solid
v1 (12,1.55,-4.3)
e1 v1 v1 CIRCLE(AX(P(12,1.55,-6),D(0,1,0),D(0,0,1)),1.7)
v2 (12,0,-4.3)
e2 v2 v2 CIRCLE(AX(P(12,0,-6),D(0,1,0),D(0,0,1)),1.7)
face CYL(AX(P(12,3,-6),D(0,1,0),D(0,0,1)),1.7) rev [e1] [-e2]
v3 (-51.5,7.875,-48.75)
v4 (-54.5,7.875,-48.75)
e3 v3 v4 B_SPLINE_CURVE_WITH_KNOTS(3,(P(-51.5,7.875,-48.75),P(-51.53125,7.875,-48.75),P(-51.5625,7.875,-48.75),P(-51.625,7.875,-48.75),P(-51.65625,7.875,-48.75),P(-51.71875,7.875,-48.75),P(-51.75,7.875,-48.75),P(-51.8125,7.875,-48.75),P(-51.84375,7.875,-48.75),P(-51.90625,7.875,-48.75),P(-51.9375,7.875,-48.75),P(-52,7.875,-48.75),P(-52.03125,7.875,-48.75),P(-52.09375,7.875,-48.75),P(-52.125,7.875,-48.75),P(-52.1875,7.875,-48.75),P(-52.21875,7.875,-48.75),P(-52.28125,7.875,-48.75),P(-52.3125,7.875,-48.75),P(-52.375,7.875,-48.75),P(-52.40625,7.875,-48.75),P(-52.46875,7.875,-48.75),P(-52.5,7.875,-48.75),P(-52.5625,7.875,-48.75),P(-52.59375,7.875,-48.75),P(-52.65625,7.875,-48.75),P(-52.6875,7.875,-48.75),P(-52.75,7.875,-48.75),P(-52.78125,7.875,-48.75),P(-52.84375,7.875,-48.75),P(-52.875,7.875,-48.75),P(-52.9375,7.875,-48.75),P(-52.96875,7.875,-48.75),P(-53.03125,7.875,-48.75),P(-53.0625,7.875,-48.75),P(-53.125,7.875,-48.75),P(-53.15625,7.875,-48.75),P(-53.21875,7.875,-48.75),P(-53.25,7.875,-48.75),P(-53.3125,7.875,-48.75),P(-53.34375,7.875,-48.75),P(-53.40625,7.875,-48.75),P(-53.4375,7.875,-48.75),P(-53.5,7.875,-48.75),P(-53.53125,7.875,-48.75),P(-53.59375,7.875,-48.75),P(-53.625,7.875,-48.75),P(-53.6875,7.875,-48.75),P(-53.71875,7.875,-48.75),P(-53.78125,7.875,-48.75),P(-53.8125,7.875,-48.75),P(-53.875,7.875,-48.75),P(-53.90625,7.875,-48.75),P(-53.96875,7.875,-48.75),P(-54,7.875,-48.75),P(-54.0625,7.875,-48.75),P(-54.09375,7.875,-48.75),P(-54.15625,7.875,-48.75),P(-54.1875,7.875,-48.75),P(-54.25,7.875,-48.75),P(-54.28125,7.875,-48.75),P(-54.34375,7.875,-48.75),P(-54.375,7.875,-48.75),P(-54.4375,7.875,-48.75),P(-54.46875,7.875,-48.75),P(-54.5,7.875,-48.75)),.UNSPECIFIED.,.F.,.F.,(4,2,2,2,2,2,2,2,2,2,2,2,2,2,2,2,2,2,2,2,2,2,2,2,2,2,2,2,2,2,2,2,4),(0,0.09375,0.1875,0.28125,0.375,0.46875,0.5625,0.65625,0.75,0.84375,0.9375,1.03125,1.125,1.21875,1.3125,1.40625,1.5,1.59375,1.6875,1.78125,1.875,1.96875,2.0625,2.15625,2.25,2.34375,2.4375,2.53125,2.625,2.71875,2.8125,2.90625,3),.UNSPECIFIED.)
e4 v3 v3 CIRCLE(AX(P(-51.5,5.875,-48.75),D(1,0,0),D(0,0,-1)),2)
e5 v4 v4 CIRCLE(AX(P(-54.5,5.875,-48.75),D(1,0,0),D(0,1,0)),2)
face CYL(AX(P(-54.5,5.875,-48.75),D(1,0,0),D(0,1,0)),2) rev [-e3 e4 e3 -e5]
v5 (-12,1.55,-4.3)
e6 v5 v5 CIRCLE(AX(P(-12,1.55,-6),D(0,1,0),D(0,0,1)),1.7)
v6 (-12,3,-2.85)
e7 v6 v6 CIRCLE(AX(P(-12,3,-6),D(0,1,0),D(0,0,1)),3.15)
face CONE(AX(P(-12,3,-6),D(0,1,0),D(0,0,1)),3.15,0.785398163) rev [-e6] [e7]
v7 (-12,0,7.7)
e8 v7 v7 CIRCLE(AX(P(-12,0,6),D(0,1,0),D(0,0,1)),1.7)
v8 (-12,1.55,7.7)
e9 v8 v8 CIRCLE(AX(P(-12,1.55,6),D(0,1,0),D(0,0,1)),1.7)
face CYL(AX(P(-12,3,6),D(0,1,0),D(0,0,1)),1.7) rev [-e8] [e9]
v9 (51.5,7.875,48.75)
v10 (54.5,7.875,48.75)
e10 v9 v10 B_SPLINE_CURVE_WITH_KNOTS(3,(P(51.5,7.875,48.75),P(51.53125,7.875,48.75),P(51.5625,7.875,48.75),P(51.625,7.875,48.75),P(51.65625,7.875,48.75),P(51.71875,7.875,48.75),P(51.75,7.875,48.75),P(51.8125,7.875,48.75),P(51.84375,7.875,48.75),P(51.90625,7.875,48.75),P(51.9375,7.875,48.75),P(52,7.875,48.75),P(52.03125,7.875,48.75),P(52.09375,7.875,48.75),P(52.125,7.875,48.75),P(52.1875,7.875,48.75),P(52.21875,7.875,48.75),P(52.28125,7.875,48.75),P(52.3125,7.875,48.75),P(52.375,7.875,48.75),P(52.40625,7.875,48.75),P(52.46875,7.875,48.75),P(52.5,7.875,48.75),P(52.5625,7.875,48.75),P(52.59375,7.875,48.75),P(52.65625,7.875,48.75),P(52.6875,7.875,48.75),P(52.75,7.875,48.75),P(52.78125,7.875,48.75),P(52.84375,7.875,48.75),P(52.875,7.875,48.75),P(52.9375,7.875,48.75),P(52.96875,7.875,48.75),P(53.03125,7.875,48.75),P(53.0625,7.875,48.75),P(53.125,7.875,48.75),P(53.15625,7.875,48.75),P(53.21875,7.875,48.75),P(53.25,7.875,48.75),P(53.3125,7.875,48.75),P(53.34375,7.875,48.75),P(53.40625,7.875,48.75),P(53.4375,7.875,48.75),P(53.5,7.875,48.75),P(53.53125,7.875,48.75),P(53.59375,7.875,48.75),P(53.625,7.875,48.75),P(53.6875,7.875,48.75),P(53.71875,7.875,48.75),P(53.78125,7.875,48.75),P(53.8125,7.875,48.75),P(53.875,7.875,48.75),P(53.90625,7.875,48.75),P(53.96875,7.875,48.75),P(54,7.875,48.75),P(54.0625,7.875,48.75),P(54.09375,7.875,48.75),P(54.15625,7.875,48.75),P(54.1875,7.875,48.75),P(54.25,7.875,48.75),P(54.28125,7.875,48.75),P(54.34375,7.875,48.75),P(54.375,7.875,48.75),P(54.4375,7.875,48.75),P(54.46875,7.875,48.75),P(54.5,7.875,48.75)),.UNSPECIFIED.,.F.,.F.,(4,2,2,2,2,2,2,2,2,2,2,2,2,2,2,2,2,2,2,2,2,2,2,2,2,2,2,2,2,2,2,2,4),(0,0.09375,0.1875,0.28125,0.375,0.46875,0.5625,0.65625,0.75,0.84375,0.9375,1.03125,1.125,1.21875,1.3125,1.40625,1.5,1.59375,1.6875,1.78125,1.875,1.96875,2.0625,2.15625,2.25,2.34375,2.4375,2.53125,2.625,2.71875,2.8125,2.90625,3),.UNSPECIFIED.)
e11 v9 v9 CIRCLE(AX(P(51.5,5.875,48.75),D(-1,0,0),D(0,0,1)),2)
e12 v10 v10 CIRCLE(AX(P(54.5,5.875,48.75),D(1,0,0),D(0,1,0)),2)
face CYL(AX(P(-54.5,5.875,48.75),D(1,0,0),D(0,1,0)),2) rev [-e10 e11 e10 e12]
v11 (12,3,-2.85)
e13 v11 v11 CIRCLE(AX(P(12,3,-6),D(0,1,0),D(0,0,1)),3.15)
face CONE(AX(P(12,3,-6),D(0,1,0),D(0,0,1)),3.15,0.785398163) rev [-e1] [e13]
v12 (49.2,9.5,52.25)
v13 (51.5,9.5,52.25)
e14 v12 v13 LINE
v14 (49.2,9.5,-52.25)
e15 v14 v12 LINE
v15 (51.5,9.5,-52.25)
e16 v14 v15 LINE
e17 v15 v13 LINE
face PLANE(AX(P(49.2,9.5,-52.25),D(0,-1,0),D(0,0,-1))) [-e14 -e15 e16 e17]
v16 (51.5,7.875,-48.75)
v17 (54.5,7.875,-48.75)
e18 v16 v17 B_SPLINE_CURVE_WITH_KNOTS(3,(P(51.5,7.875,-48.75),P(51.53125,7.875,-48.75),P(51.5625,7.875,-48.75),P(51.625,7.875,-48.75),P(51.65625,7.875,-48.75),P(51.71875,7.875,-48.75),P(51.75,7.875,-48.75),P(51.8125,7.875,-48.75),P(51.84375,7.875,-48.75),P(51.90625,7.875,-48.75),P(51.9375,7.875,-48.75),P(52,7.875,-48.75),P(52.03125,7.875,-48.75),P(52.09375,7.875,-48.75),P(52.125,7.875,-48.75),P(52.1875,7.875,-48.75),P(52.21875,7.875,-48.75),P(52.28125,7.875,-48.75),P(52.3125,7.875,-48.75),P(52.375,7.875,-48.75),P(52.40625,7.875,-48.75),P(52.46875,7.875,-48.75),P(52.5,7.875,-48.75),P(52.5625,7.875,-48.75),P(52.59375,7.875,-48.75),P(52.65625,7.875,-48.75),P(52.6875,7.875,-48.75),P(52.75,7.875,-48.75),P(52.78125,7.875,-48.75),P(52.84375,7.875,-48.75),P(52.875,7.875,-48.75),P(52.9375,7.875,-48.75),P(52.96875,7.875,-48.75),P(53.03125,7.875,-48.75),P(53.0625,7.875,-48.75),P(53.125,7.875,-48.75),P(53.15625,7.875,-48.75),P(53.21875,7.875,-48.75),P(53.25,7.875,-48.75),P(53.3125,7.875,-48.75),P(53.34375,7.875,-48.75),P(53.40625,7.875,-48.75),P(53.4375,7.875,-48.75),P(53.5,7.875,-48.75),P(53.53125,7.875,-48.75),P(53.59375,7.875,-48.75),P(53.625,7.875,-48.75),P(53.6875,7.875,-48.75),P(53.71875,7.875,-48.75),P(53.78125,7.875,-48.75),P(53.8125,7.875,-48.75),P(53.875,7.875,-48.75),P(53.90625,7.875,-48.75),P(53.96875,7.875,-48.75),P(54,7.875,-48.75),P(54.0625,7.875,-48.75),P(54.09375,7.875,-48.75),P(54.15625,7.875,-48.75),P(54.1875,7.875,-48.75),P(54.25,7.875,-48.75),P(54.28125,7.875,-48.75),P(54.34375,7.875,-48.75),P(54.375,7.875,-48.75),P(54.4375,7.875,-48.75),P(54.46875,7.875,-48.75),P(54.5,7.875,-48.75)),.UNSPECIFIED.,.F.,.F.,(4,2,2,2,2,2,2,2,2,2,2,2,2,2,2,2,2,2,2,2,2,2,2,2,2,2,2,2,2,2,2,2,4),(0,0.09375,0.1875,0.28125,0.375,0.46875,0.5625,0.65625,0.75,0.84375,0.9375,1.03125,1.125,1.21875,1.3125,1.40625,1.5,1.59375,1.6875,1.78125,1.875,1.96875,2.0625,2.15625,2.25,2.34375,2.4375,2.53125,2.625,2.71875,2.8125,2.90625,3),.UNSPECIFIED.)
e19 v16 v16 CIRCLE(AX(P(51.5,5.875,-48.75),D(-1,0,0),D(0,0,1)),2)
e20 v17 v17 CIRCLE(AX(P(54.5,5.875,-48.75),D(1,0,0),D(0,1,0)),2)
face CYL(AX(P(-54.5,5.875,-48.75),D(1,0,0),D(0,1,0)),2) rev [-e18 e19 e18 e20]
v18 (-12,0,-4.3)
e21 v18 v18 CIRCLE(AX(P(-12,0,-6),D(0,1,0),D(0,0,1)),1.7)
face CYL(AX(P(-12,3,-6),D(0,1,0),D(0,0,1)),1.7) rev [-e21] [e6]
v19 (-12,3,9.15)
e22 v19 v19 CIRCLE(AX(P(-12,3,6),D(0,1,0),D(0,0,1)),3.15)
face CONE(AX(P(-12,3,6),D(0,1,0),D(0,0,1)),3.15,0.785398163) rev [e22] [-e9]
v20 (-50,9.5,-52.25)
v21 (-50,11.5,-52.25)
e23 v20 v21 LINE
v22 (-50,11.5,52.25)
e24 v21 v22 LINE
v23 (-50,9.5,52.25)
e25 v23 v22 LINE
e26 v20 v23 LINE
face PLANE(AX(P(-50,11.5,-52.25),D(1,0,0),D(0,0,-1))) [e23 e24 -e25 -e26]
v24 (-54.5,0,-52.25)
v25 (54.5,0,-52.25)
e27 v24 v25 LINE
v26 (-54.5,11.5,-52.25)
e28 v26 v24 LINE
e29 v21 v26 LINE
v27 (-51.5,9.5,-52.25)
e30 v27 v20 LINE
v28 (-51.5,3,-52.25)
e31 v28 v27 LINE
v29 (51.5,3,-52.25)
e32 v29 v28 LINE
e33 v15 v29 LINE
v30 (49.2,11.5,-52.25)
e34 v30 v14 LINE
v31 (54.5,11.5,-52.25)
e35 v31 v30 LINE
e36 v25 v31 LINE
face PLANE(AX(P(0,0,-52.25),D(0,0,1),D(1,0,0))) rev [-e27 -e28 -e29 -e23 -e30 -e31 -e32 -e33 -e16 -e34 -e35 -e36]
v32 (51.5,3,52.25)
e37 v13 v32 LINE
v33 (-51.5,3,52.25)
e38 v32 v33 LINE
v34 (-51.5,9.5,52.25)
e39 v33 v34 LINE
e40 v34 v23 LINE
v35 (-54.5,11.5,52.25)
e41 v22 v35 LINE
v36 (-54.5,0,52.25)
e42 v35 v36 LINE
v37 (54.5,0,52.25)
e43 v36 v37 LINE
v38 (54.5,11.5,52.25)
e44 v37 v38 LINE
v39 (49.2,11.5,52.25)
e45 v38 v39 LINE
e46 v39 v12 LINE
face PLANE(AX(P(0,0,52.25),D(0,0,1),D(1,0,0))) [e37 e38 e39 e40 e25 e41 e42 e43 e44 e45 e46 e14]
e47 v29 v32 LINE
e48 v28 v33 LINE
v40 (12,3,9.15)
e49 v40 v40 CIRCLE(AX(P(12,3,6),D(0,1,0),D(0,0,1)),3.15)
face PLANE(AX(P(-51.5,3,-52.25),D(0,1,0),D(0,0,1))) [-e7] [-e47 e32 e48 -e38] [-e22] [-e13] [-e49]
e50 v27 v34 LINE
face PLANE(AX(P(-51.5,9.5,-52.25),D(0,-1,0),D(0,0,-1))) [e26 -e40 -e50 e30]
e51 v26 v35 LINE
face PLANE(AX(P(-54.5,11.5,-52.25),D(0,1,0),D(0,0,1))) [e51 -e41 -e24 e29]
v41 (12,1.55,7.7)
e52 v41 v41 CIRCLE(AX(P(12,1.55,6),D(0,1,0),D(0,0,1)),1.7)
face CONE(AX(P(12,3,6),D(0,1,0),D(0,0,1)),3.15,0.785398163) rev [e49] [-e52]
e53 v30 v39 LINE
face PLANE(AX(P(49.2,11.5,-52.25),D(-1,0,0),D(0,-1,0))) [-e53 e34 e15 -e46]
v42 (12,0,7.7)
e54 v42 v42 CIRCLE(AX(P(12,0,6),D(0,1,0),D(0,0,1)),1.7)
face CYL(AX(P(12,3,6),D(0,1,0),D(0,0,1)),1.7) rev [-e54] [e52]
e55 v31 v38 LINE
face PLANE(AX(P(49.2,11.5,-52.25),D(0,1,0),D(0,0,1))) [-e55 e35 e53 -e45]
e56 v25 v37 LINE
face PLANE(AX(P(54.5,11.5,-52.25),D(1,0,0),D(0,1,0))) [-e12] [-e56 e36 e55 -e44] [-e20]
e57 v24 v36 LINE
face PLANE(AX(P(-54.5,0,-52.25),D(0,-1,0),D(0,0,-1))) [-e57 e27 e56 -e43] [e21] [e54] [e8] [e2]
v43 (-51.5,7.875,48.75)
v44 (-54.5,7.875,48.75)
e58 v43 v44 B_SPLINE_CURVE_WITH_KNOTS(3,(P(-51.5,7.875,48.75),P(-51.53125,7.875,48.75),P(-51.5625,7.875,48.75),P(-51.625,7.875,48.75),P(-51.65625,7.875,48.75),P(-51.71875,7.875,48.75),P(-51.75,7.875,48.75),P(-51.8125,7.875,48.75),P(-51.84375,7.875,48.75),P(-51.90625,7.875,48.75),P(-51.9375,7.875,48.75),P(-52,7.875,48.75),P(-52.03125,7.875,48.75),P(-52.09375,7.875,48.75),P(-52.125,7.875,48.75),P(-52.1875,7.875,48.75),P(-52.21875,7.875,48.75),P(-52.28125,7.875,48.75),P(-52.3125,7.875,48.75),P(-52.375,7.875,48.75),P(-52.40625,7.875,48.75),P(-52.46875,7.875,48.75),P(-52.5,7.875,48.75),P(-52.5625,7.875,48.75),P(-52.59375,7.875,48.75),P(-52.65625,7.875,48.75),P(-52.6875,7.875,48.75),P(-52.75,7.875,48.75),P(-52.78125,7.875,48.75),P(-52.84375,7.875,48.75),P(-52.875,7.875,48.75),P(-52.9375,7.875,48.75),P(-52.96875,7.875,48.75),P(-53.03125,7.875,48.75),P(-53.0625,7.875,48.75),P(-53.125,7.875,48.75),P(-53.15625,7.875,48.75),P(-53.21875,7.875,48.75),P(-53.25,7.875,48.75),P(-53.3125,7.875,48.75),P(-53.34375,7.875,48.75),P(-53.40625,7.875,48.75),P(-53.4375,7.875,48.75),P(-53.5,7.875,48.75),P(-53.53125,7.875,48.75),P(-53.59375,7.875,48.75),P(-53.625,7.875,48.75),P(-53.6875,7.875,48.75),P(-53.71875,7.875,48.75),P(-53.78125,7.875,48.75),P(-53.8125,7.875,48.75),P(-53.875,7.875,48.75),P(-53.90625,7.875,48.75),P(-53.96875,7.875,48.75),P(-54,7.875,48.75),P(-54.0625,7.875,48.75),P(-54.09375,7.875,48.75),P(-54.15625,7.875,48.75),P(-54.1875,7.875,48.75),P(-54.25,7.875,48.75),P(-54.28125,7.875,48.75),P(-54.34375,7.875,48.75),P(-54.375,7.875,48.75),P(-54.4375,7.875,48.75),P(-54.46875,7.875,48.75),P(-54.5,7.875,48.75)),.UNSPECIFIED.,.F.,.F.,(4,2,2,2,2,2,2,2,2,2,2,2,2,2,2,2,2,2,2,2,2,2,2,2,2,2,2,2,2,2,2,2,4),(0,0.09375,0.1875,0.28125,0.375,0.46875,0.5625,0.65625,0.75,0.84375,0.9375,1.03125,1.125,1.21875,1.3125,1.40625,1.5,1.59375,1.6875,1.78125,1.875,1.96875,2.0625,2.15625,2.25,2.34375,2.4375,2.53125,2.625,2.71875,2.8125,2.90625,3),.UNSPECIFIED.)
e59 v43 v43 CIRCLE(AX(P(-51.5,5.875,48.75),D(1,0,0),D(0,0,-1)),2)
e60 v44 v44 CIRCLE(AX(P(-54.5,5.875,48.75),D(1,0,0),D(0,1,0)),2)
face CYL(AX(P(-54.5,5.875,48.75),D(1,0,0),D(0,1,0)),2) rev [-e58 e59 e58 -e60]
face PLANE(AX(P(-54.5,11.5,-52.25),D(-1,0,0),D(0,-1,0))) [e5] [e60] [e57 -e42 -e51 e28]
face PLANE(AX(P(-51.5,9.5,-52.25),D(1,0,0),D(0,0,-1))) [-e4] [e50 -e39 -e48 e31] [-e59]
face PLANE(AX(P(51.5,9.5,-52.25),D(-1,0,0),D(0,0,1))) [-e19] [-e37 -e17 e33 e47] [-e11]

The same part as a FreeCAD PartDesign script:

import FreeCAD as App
import Part
import Sketcher
Q = App.Units.Quantity

doc = App.newDocument("Part")
params = doc.addObject("Spreadsheet::Sheet", "Params")
for row, (alias, value) in enumerate([
    ("sketch1_width", "109 mm"),
    ("sketch1_width2", "103 mm"),
    ("sketch1_height", "2 mm"),
    ("sketch1_width3", "4.5 mm"),
    ("sketch1_width4", "5.3 mm"),
    ("pad1_length", "52.25 mm"),
    ("pad1_length2", "52.25 mm"),
    ("sketch2_width", "3 mm"),
    ("sketch2_height", "1.7 mm"),
    ("sketch2_width2", "1.55 mm"),
    ("groove_angle", "360 deg"),
    ("linearpattern_pitch", "12 mm"),
    ("linearpattern2_pitch", "26.832816 mm"),
    ("linearpattern3_pitch", "24 mm"),
    ("sketch3_diameter", "4 mm"),
], start=1):
    params.set(f"A{row}", alias)
    params.set(f"B{row}", "=" + value)
    params.setAlias(f"B{row}", alias)

body = doc.addObject("PartDesign::Body", "Body")

# Sketch on XY plane
sketch1 = doc.addObject("Sketcher::SketchObject", "Sketch")
body.addObject(sketch1)
sketch1.AttachmentSupport = (doc.XY_Plane, [""])
sketch1.MapMode = "FlatFace"
sketch1.addGeometry([
    Part.LineSegment(App.Vector(-50, 9.5, 0), App.Vector(-50, 11.5, 0)),  # 0
    Part.LineSegment(App.Vector(-50, 11.5, 0), App.Vector(-54.5, 11.5, 0)),  # 1
    Part.LineSegment(App.Vector(-54.5, 11.5, 0), App.Vector(-54.5, 0, 0)),  # 2
    Part.LineSegment(App.Vector(-54.5, 0, 0), App.Vector(54.5, 0, 0)),  # 3
    Part.LineSegment(App.Vector(54.5, 0, 0), App.Vector(54.5, 11.5, 0)),  # 4
    Part.LineSegment(App.Vector(54.5, 11.5, 0), App.Vector(49.2, 11.5, 0)),  # 5
    Part.LineSegment(App.Vector(49.2, 11.5, 0), App.Vector(49.2, 9.5, 0)),  # 6
    Part.LineSegment(App.Vector(49.2, 9.5, 0), App.Vector(51.5, 9.5, 0)),  # 7
    Part.LineSegment(App.Vector(51.5, 9.5, 0), App.Vector(51.5, 3, 0)),  # 8
    Part.LineSegment(App.Vector(51.5, 3, 0), App.Vector(-51.5, 3, 0)),  # 9
    Part.LineSegment(App.Vector(-51.5, 3, 0), App.Vector(-51.5, 9.5, 0)),  # 10
    Part.LineSegment(App.Vector(-51.5, 9.5, 0), App.Vector(-50, 9.5, 0)),  # 11
], False)
sketch1.addConstraint([
    Sketcher.Constraint("Coincident", 0, 2, 1, 1),
    Sketcher.Constraint("Coincident", 1, 2, 2, 1),
    Sketcher.Constraint("Coincident", 2, 2, 3, 1),
    Sketcher.Constraint("Coincident", 3, 2, 4, 1),
    Sketcher.Constraint("Coincident", 4, 2, 5, 1),
    Sketcher.Constraint("Coincident", 5, 2, 6, 1),
    Sketcher.Constraint("Coincident", 6, 2, 7, 1),
    Sketcher.Constraint("Coincident", 7, 2, 8, 1),
    Sketcher.Constraint("Coincident", 8, 2, 9, 1),
    Sketcher.Constraint("Coincident", 9, 2, 10, 1),
    Sketcher.Constraint("Coincident", 10, 2, 11, 1),
    Sketcher.Constraint("Coincident", 11, 2, 0, 1),
    Sketcher.Constraint("Vertical", 0),
    Sketcher.Constraint("Horizontal", 1),
    Sketcher.Constraint("Vertical", 2),
    Sketcher.Constraint("Horizontal", 3),
    Sketcher.Constraint("Vertical", 4),
    Sketcher.Constraint("Horizontal", 5),
    Sketcher.Constraint("Vertical", 6),
    Sketcher.Constraint("Horizontal", 7),
    Sketcher.Constraint("Vertical", 8),
    Sketcher.Constraint("Horizontal", 9),
    Sketcher.Constraint("Vertical", 10),
    Sketcher.Constraint("Horizontal", 11),
    Sketcher.Constraint("Symmetric", 2, 2, 3, 2, -1, 1),
    Sketcher.Constraint("Symmetric", 7, 2, 10, 2, -2),
    Sketcher.Constraint("Horizontal", 1, 2, 4, 2),
    Sketcher.Constraint("DistanceX", 3, 1, 3, 2, 109.0),
    Sketcher.Constraint("DistanceX", 9, 2, 9, 1, 103.0),
    Sketcher.Constraint("DistanceY", 0, 1, 0, 2, 2.0),
    Sketcher.Constraint("DistanceX", 1, 2, 1, 1, 4.5),
    Sketcher.Constraint("DistanceX", 5, 2, 5, 1, 5.3),
    Sketcher.Constraint("DistanceY", 2, 2, 2, 1, 11.5),
    Sketcher.Constraint("DistanceY", 8, 2, 8, 1, 6.5),
])
sketch1.setExpression("Constraints[27]", "Params.sketch1_width")
sketch1.setExpression("Constraints[28]", "Params.sketch1_width2")
sketch1.setExpression("Constraints[29]", "Params.sketch1_height")
sketch1.setExpression("Constraints[30]", "Params.sketch1_width3")
sketch1.setExpression("Constraints[31]", "Params.sketch1_width4")
pad1 = doc.addObject("PartDesign::Pad", "Pad")
body.addObject(pad1)
pad1.Profile = sketch1
pad1.Type = "TwoLengths"
pad1.setExpression("Length", "Params.pad1_length")
pad1.setExpression("Length2", "Params.pad1_length2")

# Sketch on YZ plane
sketch2 = doc.addObject("Sketcher::SketchObject", "Sketch001")
body.addObject(sketch2)
sketch2.AttachmentSupport = (doc.YZ_Plane, [""])
sketch2.MapMode = "FlatFace"
sketch2.AttachmentOffset = App.Placement(App.Vector(0, 0, -12), App.Rotation())
sketch2.addGeometry([
    Part.LineSegment(App.Vector(0, -6, 0), App.Vector(3, -6, 0)),  # 0
    Part.LineSegment(App.Vector(3, -6, 0), App.Vector(3, -2.9, 0)),  # 1
    Part.LineSegment(App.Vector(3, -2.9, 0), App.Vector(1.6, -4.3, 0)),  # 2
    Part.LineSegment(App.Vector(1.6, -4.3, 0), App.Vector(0, -4.3, 0)),  # 3
    Part.LineSegment(App.Vector(0, -4.3, 0), App.Vector(0, -6, 0)),  # 4
], False)
sketch2.addGeometry(Part.LineSegment(App.Vector(3, -6, 0), App.Vector(0, -6, 0)), True)  # axis
sketch2.addConstraint([
    Sketcher.Constraint("Coincident", 0, 2, 1, 1),
    Sketcher.Constraint("Coincident", 1, 2, 2, 1),
    Sketcher.Constraint("Coincident", 2, 2, 3, 1),
    Sketcher.Constraint("Coincident", 3, 2, 4, 1),
    Sketcher.Constraint("Coincident", 4, 2, 0, 1),
    Sketcher.Constraint("Horizontal", 0),
    Sketcher.Constraint("Vertical", 1),
    Sketcher.Constraint("Horizontal", 3),
    Sketcher.Constraint("Vertical", 4),
    Sketcher.Constraint("Horizontal", 5),
    Sketcher.Constraint("Coincident", 5, 1, 0, 2),
    Sketcher.Constraint("PointOnObject", 3, 2, -2),
    Sketcher.Constraint("PointOnObject", 5, 2, -2),
    Sketcher.Constraint("DistanceX", 0, 1, 0, 2, 3.0),
    Sketcher.Constraint("Angle", 2, Q("-135 deg")),
    Sketcher.Constraint("DistanceY", 4, 2, 4, 1, 1.7),
    Sketcher.Constraint("DistanceY", 0, 2, -1, 1, 6.0),
    Sketcher.Constraint("DistanceX", 3, 2, 3, 1, 1.55),
])
sketch2.setExpression("Constraints[13]", "Params.sketch2_width")
sketch2.setExpression("Constraints[15]", "Params.sketch2_height")
sketch2.setExpression("Constraints[17]", "Params.sketch2_width2")
groove = doc.addObject("PartDesign::Groove", "Groove")
body.addObject(groove)
groove.Profile = sketch2
groove.ReferenceAxis = (sketch2, ["Axis0"])
groove.setExpression("Angle", "Params.groove_angle")
doc.recompute()

linearpattern = doc.addObject("PartDesign::LinearPattern", "LinearPattern")
body.addObject(linearpattern)
linearpattern.Originals = [groove]
linearpattern.Direction = (doc.Z_Axis, [""])
linearpattern.Mode = "offset"
linearpattern.setExpression("Offset", "Params.linearpattern_pitch")
linearpattern.Occurrences = 2
body.Tip = linearpattern
doc.recompute()

datumline = doc.addObject("PartDesign::Line", "DatumLine")
body.addObject(datumline)
datumline.Placement = App.Placement(App.Vector(0, 0, 0), App.Rotation(App.Vector(0, 0, 1), App.Vector(0.894427191, 0, 0.447213595)))
linearpattern2 = doc.addObject("PartDesign::LinearPattern", "LinearPattern001")
body.addObject(linearpattern2)
linearpattern2.Originals = [groove]
linearpattern2.Direction = (datumline, [""])
linearpattern2.Mode = "offset"
linearpattern2.setExpression("Offset", "Params.linearpattern2_pitch")
linearpattern2.Occurrences = 2
body.Tip = linearpattern2
doc.recompute()

linearpattern3 = doc.addObject("PartDesign::LinearPattern", "LinearPattern002")
body.addObject(linearpattern3)
linearpattern3.Originals = [groove]
linearpattern3.Direction = (doc.X_Axis, [""])
linearpattern3.Mode = "offset"
linearpattern3.setExpression("Offset", "Params.linearpattern3_pitch")
linearpattern3.Occurrences = 2
body.Tip = linearpattern3

# Sketch on YZ plane
sketch3 = doc.addObject("Sketcher::SketchObject", "Sketch002")
body.addObject(sketch3)
sketch3.AttachmentSupport = (doc.YZ_Plane, [""])
sketch3.MapMode = "FlatFace"
sketch3.AttachmentOffset = App.Placement(App.Vector(0, 0, 54.5), App.Rotation())
sketch3.addGeometry([
    Part.Circle(App.Vector(5.9, 48.8, 0), App.Vector(0, 0, 1), 2),
    Part.Circle(App.Vector(5.9, -48.8, 0), App.Vector(0, 0, 1), 2),
], False)
sketch3.addConstraint([
    Sketcher.Constraint("Equal", 0, 1),
    Sketcher.Constraint("Symmetric", 0, 3, 1, 3, -1),
    Sketcher.Constraint("Diameter", 0, 4.0),
    Sketcher.Constraint("DistanceY", 1, 3, 0, 3, 97.5),
    Sketcher.Constraint("DistanceX", -1, 1, 0, 3, 5.875),
])
sketch3.setExpression("Constraints[2]", "Params.sketch3_diameter")
pocket1 = doc.addObject("PartDesign::Pocket", "Pocket")
body.addObject(pocket1)
pocket1.Profile = sketch3
pocket1.Type = "ThroughAll"

doc.recompute()
